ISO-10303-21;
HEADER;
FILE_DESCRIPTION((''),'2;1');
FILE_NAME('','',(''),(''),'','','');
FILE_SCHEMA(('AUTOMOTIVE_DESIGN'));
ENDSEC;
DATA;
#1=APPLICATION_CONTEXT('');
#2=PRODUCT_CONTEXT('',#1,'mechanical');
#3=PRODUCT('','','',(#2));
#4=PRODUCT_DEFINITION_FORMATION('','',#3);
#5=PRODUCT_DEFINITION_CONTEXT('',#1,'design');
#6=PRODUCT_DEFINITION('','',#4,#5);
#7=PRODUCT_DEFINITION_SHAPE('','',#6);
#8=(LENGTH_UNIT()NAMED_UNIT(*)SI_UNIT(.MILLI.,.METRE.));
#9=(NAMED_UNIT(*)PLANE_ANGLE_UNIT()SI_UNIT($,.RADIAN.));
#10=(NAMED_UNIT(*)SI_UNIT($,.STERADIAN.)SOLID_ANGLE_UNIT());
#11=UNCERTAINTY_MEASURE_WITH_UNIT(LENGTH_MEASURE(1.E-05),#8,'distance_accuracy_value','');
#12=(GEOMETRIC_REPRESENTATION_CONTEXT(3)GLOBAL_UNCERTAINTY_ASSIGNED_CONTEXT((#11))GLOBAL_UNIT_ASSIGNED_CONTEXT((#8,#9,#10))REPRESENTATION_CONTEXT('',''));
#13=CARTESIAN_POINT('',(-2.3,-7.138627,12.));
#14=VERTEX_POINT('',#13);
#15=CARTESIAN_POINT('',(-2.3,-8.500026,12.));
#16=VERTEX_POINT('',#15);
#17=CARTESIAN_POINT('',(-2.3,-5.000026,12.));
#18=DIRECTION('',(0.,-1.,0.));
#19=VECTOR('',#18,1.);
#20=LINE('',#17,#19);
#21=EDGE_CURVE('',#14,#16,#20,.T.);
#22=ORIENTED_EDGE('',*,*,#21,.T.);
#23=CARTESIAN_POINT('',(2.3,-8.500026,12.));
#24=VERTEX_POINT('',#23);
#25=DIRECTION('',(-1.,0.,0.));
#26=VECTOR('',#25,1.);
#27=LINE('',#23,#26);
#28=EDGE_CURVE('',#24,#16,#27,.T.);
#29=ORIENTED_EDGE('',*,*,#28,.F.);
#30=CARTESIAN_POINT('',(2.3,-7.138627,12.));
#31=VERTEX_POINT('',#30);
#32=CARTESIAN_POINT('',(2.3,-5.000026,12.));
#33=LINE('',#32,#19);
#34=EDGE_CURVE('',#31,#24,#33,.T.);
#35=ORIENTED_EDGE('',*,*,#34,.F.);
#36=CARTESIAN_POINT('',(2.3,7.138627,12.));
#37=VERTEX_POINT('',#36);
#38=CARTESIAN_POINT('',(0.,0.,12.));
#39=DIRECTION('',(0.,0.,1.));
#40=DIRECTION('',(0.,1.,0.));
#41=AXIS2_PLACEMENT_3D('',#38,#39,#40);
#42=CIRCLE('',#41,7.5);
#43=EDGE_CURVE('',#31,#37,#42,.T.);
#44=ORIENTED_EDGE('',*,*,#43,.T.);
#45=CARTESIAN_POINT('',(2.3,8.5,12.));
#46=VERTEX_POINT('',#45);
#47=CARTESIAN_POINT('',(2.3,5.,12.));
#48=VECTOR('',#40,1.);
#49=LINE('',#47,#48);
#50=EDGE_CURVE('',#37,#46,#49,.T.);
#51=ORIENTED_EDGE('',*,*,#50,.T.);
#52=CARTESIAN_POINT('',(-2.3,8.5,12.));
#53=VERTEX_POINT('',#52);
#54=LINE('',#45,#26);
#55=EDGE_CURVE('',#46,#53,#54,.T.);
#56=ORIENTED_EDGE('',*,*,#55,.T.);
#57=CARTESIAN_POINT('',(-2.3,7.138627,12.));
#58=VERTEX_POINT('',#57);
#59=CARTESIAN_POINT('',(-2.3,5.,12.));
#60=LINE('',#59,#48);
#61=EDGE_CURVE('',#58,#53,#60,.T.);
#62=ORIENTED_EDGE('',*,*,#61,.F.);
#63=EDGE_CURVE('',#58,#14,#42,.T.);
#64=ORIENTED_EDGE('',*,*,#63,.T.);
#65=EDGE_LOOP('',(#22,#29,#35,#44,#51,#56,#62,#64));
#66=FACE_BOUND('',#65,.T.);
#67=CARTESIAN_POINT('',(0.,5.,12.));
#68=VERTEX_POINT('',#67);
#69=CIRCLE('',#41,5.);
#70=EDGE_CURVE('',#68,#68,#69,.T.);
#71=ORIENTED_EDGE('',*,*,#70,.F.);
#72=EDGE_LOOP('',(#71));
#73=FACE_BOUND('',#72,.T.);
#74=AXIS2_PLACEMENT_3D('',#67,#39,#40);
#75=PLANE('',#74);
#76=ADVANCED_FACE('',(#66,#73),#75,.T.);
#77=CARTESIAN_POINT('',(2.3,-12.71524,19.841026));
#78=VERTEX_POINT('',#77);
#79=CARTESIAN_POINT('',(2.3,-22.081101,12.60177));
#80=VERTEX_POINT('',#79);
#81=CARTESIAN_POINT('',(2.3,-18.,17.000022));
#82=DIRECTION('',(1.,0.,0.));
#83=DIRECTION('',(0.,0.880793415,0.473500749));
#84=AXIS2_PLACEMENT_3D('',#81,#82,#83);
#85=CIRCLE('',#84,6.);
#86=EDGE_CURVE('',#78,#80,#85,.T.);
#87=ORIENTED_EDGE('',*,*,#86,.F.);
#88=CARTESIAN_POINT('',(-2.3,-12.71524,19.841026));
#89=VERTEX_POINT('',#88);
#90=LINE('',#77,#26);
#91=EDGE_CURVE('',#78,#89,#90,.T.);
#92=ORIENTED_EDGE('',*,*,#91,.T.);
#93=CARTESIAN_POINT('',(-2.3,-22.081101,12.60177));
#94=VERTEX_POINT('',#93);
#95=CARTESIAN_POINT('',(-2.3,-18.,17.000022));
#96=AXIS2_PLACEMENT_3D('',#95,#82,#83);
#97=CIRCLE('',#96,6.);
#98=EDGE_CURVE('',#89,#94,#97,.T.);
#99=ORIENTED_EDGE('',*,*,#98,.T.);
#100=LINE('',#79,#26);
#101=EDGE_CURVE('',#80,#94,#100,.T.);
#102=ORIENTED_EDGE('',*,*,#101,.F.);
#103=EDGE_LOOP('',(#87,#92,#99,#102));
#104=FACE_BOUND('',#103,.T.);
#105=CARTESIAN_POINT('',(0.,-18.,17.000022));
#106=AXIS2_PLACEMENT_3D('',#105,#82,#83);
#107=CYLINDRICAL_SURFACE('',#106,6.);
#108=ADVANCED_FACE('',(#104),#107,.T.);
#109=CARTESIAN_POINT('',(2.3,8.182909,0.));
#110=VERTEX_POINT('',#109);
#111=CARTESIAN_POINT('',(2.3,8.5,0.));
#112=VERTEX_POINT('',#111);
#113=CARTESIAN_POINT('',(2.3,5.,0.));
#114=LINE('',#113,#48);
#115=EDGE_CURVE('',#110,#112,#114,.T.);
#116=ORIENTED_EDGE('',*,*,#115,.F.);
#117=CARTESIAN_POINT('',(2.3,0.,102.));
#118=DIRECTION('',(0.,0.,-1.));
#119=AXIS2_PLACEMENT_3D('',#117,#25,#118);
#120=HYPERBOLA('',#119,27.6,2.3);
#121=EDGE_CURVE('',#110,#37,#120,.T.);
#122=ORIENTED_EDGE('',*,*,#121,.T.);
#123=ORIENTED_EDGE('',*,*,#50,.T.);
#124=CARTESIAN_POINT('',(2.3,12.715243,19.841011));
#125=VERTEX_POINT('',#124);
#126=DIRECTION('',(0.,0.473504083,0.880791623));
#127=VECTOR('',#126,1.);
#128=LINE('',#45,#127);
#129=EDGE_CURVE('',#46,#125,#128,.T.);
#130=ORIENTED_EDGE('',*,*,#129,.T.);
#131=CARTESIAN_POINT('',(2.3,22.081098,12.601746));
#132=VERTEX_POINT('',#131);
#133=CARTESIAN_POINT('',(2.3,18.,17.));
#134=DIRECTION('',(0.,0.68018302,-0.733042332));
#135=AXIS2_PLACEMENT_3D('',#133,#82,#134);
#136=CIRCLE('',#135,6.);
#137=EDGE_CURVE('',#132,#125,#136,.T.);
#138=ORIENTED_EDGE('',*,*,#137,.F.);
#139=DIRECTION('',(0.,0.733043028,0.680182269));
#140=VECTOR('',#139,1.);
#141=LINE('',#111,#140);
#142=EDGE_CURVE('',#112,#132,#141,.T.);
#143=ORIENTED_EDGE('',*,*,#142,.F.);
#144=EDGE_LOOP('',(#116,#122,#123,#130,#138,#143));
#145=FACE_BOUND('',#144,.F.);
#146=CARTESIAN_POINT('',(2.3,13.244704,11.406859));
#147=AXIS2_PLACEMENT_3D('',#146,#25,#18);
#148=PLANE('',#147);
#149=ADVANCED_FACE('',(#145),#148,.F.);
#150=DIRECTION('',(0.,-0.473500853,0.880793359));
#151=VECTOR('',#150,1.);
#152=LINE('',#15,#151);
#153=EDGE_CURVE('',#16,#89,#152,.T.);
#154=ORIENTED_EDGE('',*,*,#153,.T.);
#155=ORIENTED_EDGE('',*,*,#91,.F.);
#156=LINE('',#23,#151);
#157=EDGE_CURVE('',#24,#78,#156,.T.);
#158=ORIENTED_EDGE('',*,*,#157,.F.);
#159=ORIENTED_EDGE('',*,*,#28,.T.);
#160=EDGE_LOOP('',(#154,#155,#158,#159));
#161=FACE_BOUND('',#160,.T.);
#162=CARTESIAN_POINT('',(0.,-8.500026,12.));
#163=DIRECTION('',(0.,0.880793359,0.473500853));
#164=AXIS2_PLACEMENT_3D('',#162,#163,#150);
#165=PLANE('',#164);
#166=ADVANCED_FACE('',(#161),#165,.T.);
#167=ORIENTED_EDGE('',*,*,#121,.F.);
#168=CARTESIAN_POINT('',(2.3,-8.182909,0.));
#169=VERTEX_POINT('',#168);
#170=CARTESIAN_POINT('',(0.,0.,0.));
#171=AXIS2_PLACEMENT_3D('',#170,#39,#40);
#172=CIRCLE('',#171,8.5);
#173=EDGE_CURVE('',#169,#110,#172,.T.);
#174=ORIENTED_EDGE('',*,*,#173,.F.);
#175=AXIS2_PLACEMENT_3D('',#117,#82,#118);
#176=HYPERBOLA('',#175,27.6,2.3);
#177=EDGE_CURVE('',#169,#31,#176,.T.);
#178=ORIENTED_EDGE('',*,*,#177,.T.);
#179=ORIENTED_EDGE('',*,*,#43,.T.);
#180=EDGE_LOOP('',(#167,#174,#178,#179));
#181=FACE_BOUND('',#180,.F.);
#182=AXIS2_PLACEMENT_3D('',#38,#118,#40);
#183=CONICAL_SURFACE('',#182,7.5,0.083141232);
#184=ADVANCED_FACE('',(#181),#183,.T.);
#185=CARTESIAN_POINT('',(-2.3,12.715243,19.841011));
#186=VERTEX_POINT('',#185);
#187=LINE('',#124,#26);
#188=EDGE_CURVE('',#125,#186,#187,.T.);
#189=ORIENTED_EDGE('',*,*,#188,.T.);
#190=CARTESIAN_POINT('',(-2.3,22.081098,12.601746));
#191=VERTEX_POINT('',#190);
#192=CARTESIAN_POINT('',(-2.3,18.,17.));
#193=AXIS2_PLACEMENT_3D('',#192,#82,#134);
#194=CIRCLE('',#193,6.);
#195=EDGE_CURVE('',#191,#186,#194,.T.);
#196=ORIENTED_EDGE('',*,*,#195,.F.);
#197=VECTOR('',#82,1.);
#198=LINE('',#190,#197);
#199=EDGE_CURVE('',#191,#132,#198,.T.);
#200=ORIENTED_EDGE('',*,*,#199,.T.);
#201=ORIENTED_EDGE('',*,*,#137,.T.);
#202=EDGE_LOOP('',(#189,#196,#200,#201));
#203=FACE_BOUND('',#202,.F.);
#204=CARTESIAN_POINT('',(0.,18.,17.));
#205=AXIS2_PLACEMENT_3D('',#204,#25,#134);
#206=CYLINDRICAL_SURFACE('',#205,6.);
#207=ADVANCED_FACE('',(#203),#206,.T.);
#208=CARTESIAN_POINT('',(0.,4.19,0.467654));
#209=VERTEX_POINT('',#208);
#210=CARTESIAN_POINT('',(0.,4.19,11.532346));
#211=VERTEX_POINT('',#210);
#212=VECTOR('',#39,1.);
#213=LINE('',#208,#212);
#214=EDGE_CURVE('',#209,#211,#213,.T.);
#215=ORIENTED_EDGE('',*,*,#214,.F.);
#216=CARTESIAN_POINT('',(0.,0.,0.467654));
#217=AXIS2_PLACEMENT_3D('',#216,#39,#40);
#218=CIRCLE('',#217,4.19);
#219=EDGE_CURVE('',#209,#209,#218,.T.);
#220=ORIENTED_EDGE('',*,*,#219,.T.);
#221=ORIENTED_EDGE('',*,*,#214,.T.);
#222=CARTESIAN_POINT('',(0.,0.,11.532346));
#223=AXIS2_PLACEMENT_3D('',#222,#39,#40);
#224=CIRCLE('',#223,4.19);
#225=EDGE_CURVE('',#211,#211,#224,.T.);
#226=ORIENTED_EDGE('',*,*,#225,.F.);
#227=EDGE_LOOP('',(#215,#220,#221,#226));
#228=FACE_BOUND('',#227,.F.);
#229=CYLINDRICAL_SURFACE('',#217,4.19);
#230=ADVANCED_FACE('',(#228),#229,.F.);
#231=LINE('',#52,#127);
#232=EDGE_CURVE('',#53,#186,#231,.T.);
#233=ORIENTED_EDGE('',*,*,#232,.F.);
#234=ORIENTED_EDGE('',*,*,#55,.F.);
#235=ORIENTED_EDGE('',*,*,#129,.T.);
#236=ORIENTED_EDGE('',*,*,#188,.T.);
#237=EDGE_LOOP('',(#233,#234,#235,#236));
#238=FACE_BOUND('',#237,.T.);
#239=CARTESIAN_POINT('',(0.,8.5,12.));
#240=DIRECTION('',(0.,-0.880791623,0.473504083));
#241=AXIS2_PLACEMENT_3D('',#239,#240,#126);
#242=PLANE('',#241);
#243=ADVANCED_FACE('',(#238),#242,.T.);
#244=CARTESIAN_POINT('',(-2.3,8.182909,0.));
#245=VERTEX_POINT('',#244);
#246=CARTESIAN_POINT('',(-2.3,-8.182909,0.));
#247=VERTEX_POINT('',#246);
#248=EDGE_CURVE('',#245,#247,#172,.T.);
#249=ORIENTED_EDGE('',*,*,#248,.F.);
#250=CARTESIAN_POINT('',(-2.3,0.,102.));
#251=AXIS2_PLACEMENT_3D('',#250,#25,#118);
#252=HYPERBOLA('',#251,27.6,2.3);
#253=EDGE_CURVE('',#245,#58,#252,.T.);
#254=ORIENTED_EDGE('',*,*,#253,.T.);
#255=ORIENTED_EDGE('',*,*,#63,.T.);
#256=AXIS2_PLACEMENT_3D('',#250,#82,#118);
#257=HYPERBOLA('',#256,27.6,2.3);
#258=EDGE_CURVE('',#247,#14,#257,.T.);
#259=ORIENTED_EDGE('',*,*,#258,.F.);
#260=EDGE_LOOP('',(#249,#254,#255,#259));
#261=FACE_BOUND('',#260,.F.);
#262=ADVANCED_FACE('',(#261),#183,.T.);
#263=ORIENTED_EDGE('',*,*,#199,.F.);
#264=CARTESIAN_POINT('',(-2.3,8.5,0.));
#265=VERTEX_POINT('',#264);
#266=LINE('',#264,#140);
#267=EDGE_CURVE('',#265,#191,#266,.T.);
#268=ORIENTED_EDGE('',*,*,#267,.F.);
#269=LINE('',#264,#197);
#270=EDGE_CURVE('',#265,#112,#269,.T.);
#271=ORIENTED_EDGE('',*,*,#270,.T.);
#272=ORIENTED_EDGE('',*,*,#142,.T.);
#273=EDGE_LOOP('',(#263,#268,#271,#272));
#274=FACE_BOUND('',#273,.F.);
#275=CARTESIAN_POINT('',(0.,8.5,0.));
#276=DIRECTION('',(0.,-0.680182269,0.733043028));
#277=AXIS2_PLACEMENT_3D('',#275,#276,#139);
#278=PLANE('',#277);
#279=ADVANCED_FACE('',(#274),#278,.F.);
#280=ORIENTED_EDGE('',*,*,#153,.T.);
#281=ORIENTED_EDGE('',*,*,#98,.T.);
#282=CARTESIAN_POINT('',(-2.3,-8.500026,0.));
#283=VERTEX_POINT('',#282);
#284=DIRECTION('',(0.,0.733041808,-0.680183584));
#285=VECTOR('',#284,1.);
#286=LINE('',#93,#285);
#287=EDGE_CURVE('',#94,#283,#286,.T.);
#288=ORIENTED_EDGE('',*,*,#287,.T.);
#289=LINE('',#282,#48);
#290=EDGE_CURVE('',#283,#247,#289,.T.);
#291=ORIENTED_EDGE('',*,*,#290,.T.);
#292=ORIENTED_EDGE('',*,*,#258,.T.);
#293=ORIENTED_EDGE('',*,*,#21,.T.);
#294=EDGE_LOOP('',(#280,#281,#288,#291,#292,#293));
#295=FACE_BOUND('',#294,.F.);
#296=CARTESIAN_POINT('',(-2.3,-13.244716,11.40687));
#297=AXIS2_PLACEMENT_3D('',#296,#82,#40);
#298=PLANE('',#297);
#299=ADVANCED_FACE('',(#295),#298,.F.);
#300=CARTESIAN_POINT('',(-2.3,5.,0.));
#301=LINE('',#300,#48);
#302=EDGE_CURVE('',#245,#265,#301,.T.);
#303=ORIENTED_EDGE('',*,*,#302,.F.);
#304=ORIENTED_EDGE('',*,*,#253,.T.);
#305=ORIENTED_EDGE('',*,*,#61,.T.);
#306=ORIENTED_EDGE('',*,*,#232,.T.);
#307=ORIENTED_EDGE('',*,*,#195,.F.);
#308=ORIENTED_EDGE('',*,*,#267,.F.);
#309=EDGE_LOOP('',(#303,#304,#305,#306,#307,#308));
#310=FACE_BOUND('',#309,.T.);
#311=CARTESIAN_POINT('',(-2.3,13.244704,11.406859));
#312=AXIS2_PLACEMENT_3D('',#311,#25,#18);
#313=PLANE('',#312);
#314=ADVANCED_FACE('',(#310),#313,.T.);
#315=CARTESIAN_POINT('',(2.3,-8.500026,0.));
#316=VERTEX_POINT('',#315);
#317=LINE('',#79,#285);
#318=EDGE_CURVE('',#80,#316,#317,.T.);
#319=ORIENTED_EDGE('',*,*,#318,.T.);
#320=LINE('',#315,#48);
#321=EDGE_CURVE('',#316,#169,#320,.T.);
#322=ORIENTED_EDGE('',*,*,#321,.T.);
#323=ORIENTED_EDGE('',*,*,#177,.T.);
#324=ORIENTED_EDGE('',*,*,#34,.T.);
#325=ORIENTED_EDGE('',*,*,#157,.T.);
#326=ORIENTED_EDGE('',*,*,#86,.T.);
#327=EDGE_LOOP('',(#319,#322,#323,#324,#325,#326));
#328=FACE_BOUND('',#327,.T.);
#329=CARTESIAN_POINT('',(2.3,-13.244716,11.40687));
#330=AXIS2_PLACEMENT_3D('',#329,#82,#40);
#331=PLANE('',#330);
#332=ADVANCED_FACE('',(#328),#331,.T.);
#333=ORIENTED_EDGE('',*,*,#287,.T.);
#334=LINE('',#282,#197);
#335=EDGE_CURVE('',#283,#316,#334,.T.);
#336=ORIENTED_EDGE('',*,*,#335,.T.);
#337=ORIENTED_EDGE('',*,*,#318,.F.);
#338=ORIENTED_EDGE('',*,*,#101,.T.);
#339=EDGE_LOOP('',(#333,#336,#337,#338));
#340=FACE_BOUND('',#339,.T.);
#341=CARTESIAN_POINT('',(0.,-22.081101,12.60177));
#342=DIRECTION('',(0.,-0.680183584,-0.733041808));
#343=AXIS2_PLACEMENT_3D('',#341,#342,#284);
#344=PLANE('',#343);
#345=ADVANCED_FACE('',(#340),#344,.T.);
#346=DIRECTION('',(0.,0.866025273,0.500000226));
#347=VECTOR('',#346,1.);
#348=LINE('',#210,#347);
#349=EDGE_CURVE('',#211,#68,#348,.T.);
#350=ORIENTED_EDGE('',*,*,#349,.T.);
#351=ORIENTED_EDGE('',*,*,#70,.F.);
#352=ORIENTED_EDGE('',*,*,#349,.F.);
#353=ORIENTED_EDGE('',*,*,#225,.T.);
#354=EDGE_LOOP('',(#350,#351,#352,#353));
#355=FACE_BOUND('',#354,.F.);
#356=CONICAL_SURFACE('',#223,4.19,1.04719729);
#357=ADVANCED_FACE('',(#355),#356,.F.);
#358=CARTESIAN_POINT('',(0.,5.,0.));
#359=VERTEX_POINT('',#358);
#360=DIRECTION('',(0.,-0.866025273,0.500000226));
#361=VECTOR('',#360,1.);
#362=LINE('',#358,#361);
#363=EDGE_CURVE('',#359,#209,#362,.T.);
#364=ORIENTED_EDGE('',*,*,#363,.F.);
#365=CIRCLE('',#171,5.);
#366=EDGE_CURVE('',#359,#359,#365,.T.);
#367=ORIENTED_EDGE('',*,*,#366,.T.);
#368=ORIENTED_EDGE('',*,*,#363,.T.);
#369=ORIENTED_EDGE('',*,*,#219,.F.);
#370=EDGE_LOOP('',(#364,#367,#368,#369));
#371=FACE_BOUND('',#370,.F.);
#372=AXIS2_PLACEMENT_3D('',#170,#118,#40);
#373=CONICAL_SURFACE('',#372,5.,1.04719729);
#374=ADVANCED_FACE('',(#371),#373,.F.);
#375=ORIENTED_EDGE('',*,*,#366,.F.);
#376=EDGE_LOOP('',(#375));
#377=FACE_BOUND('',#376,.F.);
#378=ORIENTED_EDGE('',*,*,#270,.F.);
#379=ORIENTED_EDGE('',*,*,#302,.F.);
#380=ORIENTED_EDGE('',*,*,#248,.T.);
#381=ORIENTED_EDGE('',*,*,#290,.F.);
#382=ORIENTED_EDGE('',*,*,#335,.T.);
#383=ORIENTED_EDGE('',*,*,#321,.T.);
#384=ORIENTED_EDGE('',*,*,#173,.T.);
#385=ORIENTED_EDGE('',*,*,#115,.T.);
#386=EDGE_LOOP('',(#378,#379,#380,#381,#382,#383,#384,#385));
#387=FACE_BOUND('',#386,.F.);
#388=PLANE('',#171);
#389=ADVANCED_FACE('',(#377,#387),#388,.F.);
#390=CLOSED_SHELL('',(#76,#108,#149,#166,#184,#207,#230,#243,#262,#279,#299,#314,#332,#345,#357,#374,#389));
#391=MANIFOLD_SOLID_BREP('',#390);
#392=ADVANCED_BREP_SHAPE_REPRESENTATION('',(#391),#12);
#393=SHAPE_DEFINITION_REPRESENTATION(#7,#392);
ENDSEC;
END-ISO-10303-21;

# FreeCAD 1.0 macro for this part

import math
import FreeCAD as App
import Part
import Sketcher

V = App.Vector
Q = App.Units.Quantity

doc = App.newDocument("Part")
body = doc.addObject("PartDesign::Body", "Body")
body.AllowCompound = True

sketch1 = body.newObject("Sketcher::SketchObject", "Sketch")
sketch1.AttachmentSupport = (doc.getObject("YZ_Plane"), [""])
sketch1.MapMode = "FlatFace"
sketch1.addGeometry([
    Part.LineSegment(V(5, 12, 0), V(5, 0, 0)),
    Part.LineSegment(V(5, 0, 0), V(8.5, 0, 0)),
    Part.LineSegment(V(8.5, 0, 0), V(22.081098, 12.601746, 0)),
    Part.ArcOfCircle(Part.Circle(V(18, 17, 0), V(0, 0, 1), 6), math.radians(-47.142054), math.radians(151.73815)),
    Part.LineSegment(V(12.715243, 19.841011, 0), V(8.5, 12, 0)),
    Part.LineSegment(V(8.5, 12, 0), V(5, 12, 0)),
    Part.LineSegment(V(-22.081101, 12.60177, 0), V(-8.500026, 0, 0)),
    Part.LineSegment(V(-8.500026, 0, 0), V(-5.000026, 0, 0)),
    Part.LineSegment(V(-5.000026, 0, 0), V(-5.000026, 12, 0)),
    Part.LineSegment(V(-5.000026, 12, 0), V(-8.500026, 12, 0)),
    Part.LineSegment(V(-8.500026, 12, 0), V(-12.71524, 19.841026, 0)),
    Part.ArcOfCircle(Part.Circle(V(-18, 17.000022, 0), V(0, 0, 1), 6), math.radians(28.261779), math.radians(227.14202)),
], False)
sketch1.addConstraint([
    Sketcher.Constraint("Coincident", 0, 2, 1, 1),
    Sketcher.Constraint("Coincident", 1, 2, 2, 1),
    Sketcher.Constraint("Tangent", 2, 2, 3, 1),
    Sketcher.Constraint("Coincident", 3, 2, 4, 1),
    Sketcher.Constraint("Coincident", 4, 2, 5, 1),
    Sketcher.Constraint("Coincident", 5, 2, 0, 1),
    Sketcher.Constraint("Coincident", 6, 2, 7, 1),
    Sketcher.Constraint("Coincident", 7, 2, 8, 1),
    Sketcher.Constraint("Coincident", 8, 2, 9, 1),
    Sketcher.Constraint("Coincident", 9, 2, 10, 1),
    Sketcher.Constraint("Tangent", 10, 2, 11, 1),
    Sketcher.Constraint("Tangent", 11, 2, 6, 1),
    Sketcher.Constraint("Vertical", 0),
    Sketcher.Constraint("Horizontal", 1),
    Sketcher.Constraint("Horizontal", 5),
    Sketcher.Constraint("Horizontal", 7),
    Sketcher.Constraint("Vertical", 8),
    Sketcher.Constraint("Horizontal", 9),
    Sketcher.Constraint("Equal", 3, 11),
    Sketcher.Constraint("PointOnObject", 0, 2, -1),
    Sketcher.Constraint("PointOnObject", 6, 2, -1),
    Sketcher.Constraint("Horizontal", 5, 2, 8, 2),
    Sketcher.Constraint("Vertical", 1, 2, 4, 2),
    Sketcher.Constraint("Vertical", 6, 2, 9, 2),
    Sketcher.Constraint("Equal", 5, 7),
    Sketcher.Constraint("Equal", 2, 6),
    Sketcher.Constraint("Equal", 4, 10),
    Sketcher.Constraint("Radius", 3, 6.0),
    Sketcher.Constraint("DistanceY", 0, 2, 0, 1, 12.0),
    Sketcher.Constraint("DistanceX", 1, 1, 1, 2, 3.5),
    Sketcher.Constraint("DistanceX", -1, 1, 3, 3, 18.0),
    Sketcher.Constraint("DistanceY", -1, 1, 3, 3, 17.0),
    Sketcher.Constraint("DistanceX", 11, 3, -1, 1, 18.0),
    Sketcher.Constraint("DistanceX", -1, 1, 0, 2, 5.0),
    Sketcher.Constraint("DistanceX", 11, 2, -1, 1, 22.081101),
])
pad1 = body.newObject("PartDesign::Pad", "Pad")
pad1.Profile = sketch1
pad1.Length = 4.6
pad1.Midplane = True
body2 = doc.addObject("PartDesign::Body", "Body001")

sketch2 = body2.newObject("Sketcher::SketchObject", "Sketch001")
sketch2.AttachmentSupport = (doc.getObject("YZ_Plane001"), [""])
sketch2.MapMode = "FlatFace"
sketch2.addGeometry([
    Part.LineSegment(V(4.19, 0.467654, 0), V(5, 0, 0)),
    Part.LineSegment(V(5, 0, 0), V(8.5, 0, 0)),
    Part.LineSegment(V(8.5, 0, 0), V(7.5, 12, 0)),
    Part.LineSegment(V(7.5, 12, 0), V(5, 12, 0)),
    Part.LineSegment(V(5, 12, 0), V(4.19, 11.532346, 0)),
    Part.LineSegment(V(4.19, 11.532346, 0), V(4.19, 0.467654, 0)),
], False)
sketch2.addConstraint([
    Sketcher.Constraint("Coincident", 0, 2, 1, 1),
    Sketcher.Constraint("Coincident", 1, 2, 2, 1),
    Sketcher.Constraint("Coincident", 2, 2, 3, 1),
    Sketcher.Constraint("Coincident", 3, 2, 4, 1),
    Sketcher.Constraint("Coincident", 4, 2, 5, 1),
    Sketcher.Constraint("Coincident", 5, 2, 0, 1),
    Sketcher.Constraint("Horizontal", 1),
    Sketcher.Constraint("Horizontal", 3),
    Sketcher.Constraint("Vertical", 5),
    Sketcher.Constraint("PointOnObject", 0, 2, -1),
    Sketcher.Constraint("Vertical", 0, 2, 3, 2),
    Sketcher.Constraint("Equal", 0, 4),
    Sketcher.Constraint("Angle", 0, Q("-30.000015 deg")),
    Sketcher.Constraint("DistanceX", 1, 1, 1, 2, 3.5),
    Sketcher.Constraint("DistanceX", 3, 2, 3, 1, 2.5),
    Sketcher.Constraint("DistanceX", -1, 1, 0, 2, 5.0),
    Sketcher.Constraint("DistanceY", -1, 1, 2, 2, 12.0),
    Sketcher.Constraint("DistanceX", -1, 1, 4, 2, 4.19),
])
revolution = body2.newObject("PartDesign::Revolution", "Revolution")
revolution.Profile = sketch2
revolution.ReferenceAxis = (sketch2, ["V_Axis"])
revolution.Angle = 360
doc.recompute()

boolean = body2.newObject("PartDesign::Boolean", "Boolean")
boolean.Type = "Fuse"
boolean.addObjects([body])

doc.recompute()
